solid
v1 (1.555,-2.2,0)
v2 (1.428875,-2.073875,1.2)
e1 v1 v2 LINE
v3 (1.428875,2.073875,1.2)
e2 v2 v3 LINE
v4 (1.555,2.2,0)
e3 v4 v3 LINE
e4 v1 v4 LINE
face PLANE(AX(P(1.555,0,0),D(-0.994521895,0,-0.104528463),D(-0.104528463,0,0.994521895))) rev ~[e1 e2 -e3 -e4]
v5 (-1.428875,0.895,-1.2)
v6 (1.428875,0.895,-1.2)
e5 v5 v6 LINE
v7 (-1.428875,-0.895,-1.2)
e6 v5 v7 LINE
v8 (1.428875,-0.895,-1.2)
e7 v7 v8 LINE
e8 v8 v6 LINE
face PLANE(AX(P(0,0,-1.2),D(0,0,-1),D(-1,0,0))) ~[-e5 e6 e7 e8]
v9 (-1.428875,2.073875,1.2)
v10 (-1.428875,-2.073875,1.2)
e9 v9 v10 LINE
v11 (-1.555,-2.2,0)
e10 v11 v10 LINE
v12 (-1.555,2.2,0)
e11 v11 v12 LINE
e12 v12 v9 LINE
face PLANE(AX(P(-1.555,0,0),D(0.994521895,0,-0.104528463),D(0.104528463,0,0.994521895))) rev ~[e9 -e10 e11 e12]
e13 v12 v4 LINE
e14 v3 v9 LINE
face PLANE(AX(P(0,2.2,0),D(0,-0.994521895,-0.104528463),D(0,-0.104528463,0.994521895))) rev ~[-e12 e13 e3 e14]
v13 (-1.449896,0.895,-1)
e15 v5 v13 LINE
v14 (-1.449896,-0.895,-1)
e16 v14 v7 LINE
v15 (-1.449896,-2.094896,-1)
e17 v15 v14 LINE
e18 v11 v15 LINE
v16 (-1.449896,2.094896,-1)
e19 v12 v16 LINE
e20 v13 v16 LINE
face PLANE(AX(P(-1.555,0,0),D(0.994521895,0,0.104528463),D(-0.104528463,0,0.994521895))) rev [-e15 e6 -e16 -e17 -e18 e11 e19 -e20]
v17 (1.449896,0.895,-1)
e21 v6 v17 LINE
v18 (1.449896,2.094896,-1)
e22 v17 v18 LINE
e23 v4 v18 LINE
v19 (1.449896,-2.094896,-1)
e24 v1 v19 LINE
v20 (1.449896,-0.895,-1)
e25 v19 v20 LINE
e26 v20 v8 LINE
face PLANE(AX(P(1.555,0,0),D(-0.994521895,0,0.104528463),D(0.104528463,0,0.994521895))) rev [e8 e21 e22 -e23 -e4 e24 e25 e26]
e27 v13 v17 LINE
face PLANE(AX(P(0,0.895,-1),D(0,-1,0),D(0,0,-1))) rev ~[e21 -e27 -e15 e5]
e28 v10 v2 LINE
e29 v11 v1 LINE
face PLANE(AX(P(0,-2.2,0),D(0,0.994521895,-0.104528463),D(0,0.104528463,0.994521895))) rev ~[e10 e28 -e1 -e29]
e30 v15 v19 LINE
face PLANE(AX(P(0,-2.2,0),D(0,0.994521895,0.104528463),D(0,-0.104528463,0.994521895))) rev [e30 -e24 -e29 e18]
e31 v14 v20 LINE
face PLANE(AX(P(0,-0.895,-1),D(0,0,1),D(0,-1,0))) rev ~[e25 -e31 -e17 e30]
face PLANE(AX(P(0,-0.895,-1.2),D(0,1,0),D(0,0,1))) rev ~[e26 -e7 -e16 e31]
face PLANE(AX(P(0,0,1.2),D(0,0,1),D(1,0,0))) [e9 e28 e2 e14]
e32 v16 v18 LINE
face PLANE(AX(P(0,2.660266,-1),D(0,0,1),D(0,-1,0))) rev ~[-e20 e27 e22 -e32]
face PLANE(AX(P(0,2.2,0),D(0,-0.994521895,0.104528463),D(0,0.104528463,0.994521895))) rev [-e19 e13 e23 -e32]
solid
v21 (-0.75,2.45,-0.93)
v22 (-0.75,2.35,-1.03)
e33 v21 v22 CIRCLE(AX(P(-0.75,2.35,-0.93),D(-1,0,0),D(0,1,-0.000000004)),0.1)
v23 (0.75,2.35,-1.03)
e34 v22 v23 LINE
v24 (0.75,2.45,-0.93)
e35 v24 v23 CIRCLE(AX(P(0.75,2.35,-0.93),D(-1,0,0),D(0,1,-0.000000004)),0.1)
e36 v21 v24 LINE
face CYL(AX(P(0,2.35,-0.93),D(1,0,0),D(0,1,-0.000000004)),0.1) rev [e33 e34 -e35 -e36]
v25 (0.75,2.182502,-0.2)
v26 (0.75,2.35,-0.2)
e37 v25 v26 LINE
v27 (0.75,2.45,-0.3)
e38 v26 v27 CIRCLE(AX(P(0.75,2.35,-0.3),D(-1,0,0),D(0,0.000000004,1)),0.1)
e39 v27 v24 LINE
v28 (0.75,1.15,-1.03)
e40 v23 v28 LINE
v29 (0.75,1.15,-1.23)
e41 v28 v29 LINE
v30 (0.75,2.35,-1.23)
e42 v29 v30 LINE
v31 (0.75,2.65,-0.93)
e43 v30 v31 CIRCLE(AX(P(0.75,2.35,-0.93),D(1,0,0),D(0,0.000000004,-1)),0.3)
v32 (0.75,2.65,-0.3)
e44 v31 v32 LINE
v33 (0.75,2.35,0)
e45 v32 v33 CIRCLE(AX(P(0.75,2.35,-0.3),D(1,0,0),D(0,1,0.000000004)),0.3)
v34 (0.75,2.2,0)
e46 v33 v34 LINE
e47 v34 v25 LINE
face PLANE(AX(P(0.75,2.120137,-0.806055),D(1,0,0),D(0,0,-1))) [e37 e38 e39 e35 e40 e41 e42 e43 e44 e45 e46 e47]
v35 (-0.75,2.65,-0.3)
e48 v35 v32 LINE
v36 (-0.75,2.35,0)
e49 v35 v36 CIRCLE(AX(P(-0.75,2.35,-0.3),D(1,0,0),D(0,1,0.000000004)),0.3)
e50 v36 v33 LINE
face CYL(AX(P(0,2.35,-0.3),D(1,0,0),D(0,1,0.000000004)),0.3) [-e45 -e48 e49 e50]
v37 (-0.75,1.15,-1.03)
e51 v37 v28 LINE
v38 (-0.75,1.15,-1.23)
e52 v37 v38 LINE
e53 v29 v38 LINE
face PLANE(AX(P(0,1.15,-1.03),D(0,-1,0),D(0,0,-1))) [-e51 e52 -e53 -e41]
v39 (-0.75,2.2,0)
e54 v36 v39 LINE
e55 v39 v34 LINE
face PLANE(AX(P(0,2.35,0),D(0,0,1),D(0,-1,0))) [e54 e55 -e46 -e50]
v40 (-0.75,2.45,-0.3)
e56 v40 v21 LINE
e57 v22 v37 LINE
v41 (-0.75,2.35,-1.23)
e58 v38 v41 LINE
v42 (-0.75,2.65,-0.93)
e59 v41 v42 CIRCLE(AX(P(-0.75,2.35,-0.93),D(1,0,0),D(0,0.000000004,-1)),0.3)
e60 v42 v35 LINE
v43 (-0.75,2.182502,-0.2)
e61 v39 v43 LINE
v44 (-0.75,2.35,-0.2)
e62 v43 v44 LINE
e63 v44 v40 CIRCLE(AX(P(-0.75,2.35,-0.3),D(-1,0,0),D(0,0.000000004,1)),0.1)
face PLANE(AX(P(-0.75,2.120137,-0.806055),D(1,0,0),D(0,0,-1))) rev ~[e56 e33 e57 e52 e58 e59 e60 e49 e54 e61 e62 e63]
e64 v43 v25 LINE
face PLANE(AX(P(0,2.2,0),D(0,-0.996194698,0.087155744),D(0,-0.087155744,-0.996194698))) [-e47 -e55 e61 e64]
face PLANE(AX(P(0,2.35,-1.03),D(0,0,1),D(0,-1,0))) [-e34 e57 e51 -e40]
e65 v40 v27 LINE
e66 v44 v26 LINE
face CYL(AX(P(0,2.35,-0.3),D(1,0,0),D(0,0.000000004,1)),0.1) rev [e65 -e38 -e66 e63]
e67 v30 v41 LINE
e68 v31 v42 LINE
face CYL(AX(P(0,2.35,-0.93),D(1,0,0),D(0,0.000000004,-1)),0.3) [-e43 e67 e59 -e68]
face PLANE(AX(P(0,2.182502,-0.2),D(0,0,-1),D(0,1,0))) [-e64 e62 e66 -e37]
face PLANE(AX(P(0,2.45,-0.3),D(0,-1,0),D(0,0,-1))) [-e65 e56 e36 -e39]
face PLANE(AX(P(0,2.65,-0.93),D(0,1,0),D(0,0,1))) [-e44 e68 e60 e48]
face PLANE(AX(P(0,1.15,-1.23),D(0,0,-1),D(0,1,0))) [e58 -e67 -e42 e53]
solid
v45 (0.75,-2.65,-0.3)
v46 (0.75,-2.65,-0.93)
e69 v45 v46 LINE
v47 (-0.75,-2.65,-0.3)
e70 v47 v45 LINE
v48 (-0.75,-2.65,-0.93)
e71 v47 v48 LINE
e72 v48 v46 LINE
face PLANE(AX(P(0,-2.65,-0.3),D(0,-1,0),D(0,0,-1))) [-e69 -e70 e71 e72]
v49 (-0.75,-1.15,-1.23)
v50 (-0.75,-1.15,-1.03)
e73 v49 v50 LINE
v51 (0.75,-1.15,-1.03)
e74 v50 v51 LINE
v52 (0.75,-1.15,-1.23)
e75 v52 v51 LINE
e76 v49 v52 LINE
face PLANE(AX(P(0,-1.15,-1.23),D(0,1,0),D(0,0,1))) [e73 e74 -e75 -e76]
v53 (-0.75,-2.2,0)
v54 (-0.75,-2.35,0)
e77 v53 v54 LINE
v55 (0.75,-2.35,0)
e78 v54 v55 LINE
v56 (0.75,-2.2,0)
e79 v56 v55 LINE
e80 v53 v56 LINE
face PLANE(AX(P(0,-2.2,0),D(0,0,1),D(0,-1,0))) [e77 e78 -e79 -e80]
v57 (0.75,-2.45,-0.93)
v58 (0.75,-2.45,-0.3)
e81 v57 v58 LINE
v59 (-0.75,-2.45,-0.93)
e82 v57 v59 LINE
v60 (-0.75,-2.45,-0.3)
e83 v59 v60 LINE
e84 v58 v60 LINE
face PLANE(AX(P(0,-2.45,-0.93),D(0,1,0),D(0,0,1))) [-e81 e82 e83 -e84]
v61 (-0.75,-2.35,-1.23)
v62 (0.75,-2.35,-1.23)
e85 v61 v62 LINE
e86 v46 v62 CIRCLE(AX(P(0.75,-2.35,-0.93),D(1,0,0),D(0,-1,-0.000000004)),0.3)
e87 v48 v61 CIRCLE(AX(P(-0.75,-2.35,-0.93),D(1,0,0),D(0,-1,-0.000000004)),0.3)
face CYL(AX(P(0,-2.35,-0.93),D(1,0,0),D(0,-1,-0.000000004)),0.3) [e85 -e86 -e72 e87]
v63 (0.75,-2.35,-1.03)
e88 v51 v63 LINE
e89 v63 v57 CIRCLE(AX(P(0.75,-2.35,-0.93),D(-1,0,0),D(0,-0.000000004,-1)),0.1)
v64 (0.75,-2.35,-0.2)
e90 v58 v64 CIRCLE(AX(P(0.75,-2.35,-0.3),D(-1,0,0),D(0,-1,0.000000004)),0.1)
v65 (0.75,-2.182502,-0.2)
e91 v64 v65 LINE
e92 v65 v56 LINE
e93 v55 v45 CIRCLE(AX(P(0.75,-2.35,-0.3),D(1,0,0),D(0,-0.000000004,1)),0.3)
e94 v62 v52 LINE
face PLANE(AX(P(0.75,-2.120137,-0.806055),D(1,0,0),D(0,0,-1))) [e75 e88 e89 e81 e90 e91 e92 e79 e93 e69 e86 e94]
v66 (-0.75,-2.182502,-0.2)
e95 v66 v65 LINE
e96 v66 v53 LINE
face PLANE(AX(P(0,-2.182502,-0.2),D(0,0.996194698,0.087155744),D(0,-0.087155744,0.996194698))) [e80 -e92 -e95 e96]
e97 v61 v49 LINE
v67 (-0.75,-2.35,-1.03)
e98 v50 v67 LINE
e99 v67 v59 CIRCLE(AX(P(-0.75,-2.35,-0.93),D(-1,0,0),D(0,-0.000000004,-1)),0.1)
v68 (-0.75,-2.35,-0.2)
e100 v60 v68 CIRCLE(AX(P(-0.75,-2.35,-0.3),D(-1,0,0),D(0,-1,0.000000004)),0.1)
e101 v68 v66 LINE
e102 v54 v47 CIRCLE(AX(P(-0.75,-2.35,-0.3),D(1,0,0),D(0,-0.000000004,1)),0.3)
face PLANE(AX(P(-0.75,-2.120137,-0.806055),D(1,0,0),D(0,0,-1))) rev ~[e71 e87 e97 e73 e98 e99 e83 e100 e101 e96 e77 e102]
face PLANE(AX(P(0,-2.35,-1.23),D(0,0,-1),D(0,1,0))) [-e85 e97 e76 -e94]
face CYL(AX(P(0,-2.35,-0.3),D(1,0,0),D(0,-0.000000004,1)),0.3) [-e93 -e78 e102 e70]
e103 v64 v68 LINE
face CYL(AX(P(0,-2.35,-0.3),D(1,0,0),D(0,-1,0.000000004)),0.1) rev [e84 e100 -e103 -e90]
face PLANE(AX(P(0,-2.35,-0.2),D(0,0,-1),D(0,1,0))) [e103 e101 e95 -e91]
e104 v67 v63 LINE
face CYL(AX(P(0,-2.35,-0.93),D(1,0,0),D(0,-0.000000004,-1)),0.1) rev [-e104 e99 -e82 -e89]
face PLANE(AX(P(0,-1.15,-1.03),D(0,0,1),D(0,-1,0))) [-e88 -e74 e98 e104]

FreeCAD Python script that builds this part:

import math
import FreeCAD as App
import Part
import Sketcher

V = App.Vector
Q = App.Units.Quantity

doc = App.newDocument("Part")
body = doc.addObject("PartDesign::Body", "Body")

sketch1 = body.newObject("Sketcher::SketchObject", "Sketch")
sketch1.AttachmentSupport = (doc.getObject("XY_Plane"), [""])
sketch1.MapMode = "FlatFace"
sketch1.addGeometry([
    Part.LineSegment(V(-1.555, 2.2, 0), V(-1.555, -2.2, 0)),
    Part.LineSegment(V(-1.555, -2.2, 0), V(1.555, -2.2, 0)),
    Part.LineSegment(V(1.555, -2.2, 0), V(1.555, 2.2, 0)),
    Part.LineSegment(V(1.555, 2.2, 0), V(-1.555, 2.2, 0)),
], False)
sketch1.addConstraint([
    Sketcher.Constraint("Coincident", 0, 2, 1, 1),
    Sketcher.Constraint("Coincident", 1, 2, 2, 1),
    Sketcher.Constraint("Coincident", 2, 2, 3, 1),
    Sketcher.Constraint("Coincident", 3, 2, 0, 1),
    Sketcher.Constraint("Vertical", 0),
    Sketcher.Constraint("Horizontal", 1),
    Sketcher.Constraint("Vertical", 2),
    Sketcher.Constraint("Horizontal", 3),
    Sketcher.Constraint("Symmetric", 0, 2, 2, 2, -1, 1),
    Sketcher.Constraint("DistanceY", 0, 2, 0, 1, 4.4),
    Sketcher.Constraint("DistanceX", 1, 1, 1, 2, 3.11),
])
pad1 = body.newObject("PartDesign::Pad", "Pad")
pad1.Profile = sketch1
pad1.Length = 1.2
pad1.TaperAngle = -6
body2 = doc.addObject("PartDesign::Body", "Body001")
doc.recompute()

body2.BaseFeature = body
doc.recompute()

mirroring = doc.addObject("Part::Mirroring", "Mirroring")
mirroring.Source = body
mirroring.Base = V(0, 0, 0)
mirroring.Normal = V(0, 0, -1)
body3 = doc.addObject("PartDesign::Body", "Body002")
body3.BaseFeature = mirroring
boolean = body2.newObject("PartDesign::Boolean", "Boolean")
boolean.Type = "Fuse"
boolean.addObjects([body3])
doc.recompute()

sketch2 = body2.newObject("Sketcher::SketchObject", "Sketch001")
sketch2.AttachmentSupport = (doc.getObject("YZ_Plane001"), [""])
sketch2.MapMode = "FlatFace"
sketch2.addGeometry([
    Part.LineSegment(V(-0.895, -1.2, 0), V(-0.895, -1, 0)),
    Part.LineSegment(V(-0.895, -1, 0), V(-2.564938, -1, 0)),
    Part.LineSegment(V(-2.564938, -1, 0), V(-2.564938, -1.280609, 0)),
    Part.LineSegment(V(-2.564938, -1.280609, 0), V(-0.895, -1.2, 0)),
    Part.LineSegment(V(0.895, -1, 0), V(0.895, -1.2, 0)),
    Part.LineSegment(V(0.895, -1.2, 0), V(2.600403, -1.494406, 0)),
    Part.LineSegment(V(2.600403, -1.494406, 0), V(2.660266, -1, 0)),
    Part.LineSegment(V(2.660266, -1, 0), V(0.895, -1, 0)),
], False)
sketch2.addConstraint([
    Sketcher.Constraint("Coincident", 0, 2, 1, 1),
    Sketcher.Constraint("Coincident", 1, 2, 2, 1),
    Sketcher.Constraint("Coincident", 2, 2, 3, 1),
    Sketcher.Constraint("Coincident", 3, 2, 0, 1),
    Sketcher.Constraint("Coincident", 4, 2, 5, 1),
    Sketcher.Constraint("Coincident", 5, 2, 6, 1),
    Sketcher.Constraint("Coincident", 6, 2, 7, 1),
    Sketcher.Constraint("Coincident", 7, 2, 4, 1),
    Sketcher.Constraint("Vertical", 0),
    Sketcher.Constraint("Horizontal", 1),
    Sketcher.Constraint("Vertical", 2),
    Sketcher.Constraint("Vertical", 4),
    Sketcher.Constraint("Horizontal", 7),
    Sketcher.Constraint("Symmetric", 3, 2, 4, 2, -2),
    Sketcher.Constraint("Horizontal", 1, 2, 6, 2),
    Sketcher.Constraint("DistanceY", 0, 1, 0, 2, 0.2),
    Sketcher.Constraint("DistanceY", 0, 2, -1, 1, 1.0),
    Sketcher.Constraint("DistanceX", 3, 2, 4, 2, 1.79),
    Sketcher.Constraint("DistanceY", 2, 2, 2, 1, 0.280609),
    Sketcher.Constraint("Distance", 3, 1.671882),
    Sketcher.Constraint("Distance", 5, 1.730628),
    Sketcher.Constraint("DistanceX", 7, 2, 7, 1, 1.765266),
    Sketcher.Constraint("DistanceX", 2, 2, 5, 2, 5.165341),
])
pocket1 = body2.newObject("PartDesign::Pocket", "Pocket")
pocket1.Profile = sketch2
pocket1.Type = "ThroughAll"
pocket1.Midplane = True
body4 = doc.addObject("PartDesign::Body", "Body003")

sketch3 = body4.newObject("Sketcher::SketchObject", "Sketch002")
sketch3.AttachmentSupport = (doc.getObject("YZ_Plane003"), [""])
sketch3.MapMode = "FlatFace"
sketch3.addGeometry([
    Part.LineSegment(V(-2.35, -0.2, 0), V(-2.182502, -0.2, 0)),
    Part.LineSegment(V(-2.182502, -0.2, 0), V(-2.2, 0, 0)),
    Part.LineSegment(V(-2.2, 0, 0), V(-2.35, 0, 0)),
    Part.ArcOfCircle(Part.Circle(V(-2.35, -0.3, 0), V(0, 0, 1), 0.3), math.radians(90), math.radians(180)),
    Part.LineSegment(V(-2.65, -0.3, 0), V(-2.65, -0.93, 0)),
    Part.ArcOfCircle(Part.Circle(V(-2.35, -0.93, 0), V(0, 0, 1), 0.3), math.radians(-180), math.radians(-90)),
    Part.LineSegment(V(-2.35, -1.23, 0), V(-1.15, -1.23, 0)),
    Part.LineSegment(V(-1.15, -1.23, 0), V(-1.15, -1.03, 0)),
    Part.LineSegment(V(-1.15, -1.03, 0), V(-2.35, -1.03, 0)),
    Part.ArcOfCircle(Part.Circle(V(-2.35, -0.93, 0), V(0, 0, 1), 0.1), math.radians(180), math.radians(270)),
    Part.LineSegment(V(-2.45, -0.93, 0), V(-2.45, -0.3, 0)),
    Part.ArcOfCircle(Part.Circle(V(-2.35, -0.3, 0), V(0, 0, 1), 0.1), math.radians(90), math.radians(180)),
], False)
sketch3.addConstraint([
    Sketcher.Constraint("Coincident", 0, 2, 1, 1),
    Sketcher.Constraint("Coincident", 1, 2, 2, 1),
    Sketcher.Constraint("Tangent", 2, 2, 3, 1),
    Sketcher.Constraint("Tangent", 3, 2, 4, 1),
    Sketcher.Constraint("Tangent", 4, 2, 5, 1),
    Sketcher.Constraint("Tangent", 5, 2, 6, 1),
    Sketcher.Constraint("Coincident", 6, 2, 7, 1),
    Sketcher.Constraint("Coincident", 7, 2, 8, 1),
    Sketcher.Constraint("Tangent", 8, 2, 9, 2),
    Sketcher.Constraint("Tangent", 9, 1, 10, 1),
    Sketcher.Constraint("Tangent", 10, 2, 11, 2),
    Sketcher.Constraint("Tangent", 11, 1, 0, 1),
    Sketcher.Constraint("Horizontal", 0),
    Sketcher.Constraint("Horizontal", 2),
    Sketcher.Constraint("Vertical", 4),
    Sketcher.Constraint("Horizontal", 6),
    Sketcher.Constraint("Vertical", 7),
    Sketcher.Constraint("Horizontal", 8),
    Sketcher.Constraint("Vertical", 10),
    Sketcher.Constraint("Coincident", 9, 3, 5, 3),
    Sketcher.Constraint("Coincident", 11, 3, 3, 3),
    Sketcher.Constraint("Equal", 3, 5),
    Sketcher.Constraint("PointOnObject", 1, 2, -1),
    Sketcher.Constraint("Radius", 3, 0.3),
    Sketcher.Constraint("Radius", 9, 0.1),
    Sketcher.Constraint("Angle", 1, Q("95 deg")),
    Sketcher.Constraint("DistanceX", 6, 1, 6, 2, 1.2),
    Sketcher.Constraint("DistanceX", 2, 2, 2, 1, 0.15),
    Sketcher.Constraint("DistanceY", 4, 2, 4, 1, 0.63),
    Sketcher.Constraint("DistanceX", 1, 2, -1, 1, 2.2),
])
pad2 = body4.newObject("PartDesign::Pad", "Pad001")
pad2.Profile = sketch3
pad2.Length = 1.5
pad2.Midplane = True
body5 = doc.addObject("PartDesign::Body", "Body004")

sketch4 = body5.newObject("Sketcher::SketchObject", "Sketch003")
sketch4.AttachmentSupport = (doc.getObject("YZ_Plane004"), [""])
sketch4.MapMode = "FlatFace"
sketch4.addGeometry([
    Part.LineSegment(V(2.65, -0.93, 0), V(2.65, -0.3, 0)),
    Part.ArcOfCircle(Part.Circle(V(2.35, -0.3, 0), V(0, 0, 1), 0.3), math.radians(0), math.radians(90)),
    Part.LineSegment(V(2.35, 0, 0), V(2.2, 0, 0)),
    Part.LineSegment(V(2.2, 0, 0), V(2.182502, -0.2, 0)),
    Part.LineSegment(V(2.182502, -0.2, 0), V(2.35, -0.2, 0)),
    Part.ArcOfCircle(Part.Circle(V(2.35, -0.3, 0), V(0, 0, 1), 0.1), math.radians(0), math.radians(90)),
    Part.LineSegment(V(2.45, -0.3, 0), V(2.45, -0.93, 0)),
    Part.ArcOfCircle(Part.Circle(V(2.35, -0.93, 0), V(0, 0, 1), 0.1), math.radians(-90), math.radians(0)),
    Part.LineSegment(V(2.35, -1.03, 0), V(1.15, -1.03, 0)),
    Part.LineSegment(V(1.15, -1.03, 0), V(1.15, -1.23, 0)),
    Part.LineSegment(V(1.15, -1.23, 0), V(2.35, -1.23, 0)),
    Part.ArcOfCircle(Part.Circle(V(2.35, -0.93, 0), V(0, 0, 1), 0.3), math.radians(-90), math.radians(0)),
], False)
sketch4.addConstraint([
    Sketcher.Constraint("Tangent", 0, 2, 1, 1),
    Sketcher.Constraint("Tangent", 1, 2, 2, 1),
    Sketcher.Constraint("Coincident", 2, 2, 3, 1),
    Sketcher.Constraint("Coincident", 3, 2, 4, 1),
    Sketcher.Constraint("Tangent", 4, 2, 5, 2),
    Sketcher.Constraint("Tangent", 5, 1, 6, 1),
    Sketcher.Constraint("Tangent", 6, 2, 7, 2),
    Sketcher.Constraint("Tangent", 7, 1, 8, 1),
    Sketcher.Constraint("Coincident", 8, 2, 9, 1),
    Sketcher.Constraint("Coincident", 9, 2, 10, 1),
    Sketcher.Constraint("Tangent", 10, 2, 11, 1),
    Sketcher.Constraint("Tangent", 11, 2, 0, 1),
    Sketcher.Constraint("Vertical", 0),
    Sketcher.Constraint("Horizontal", 2),
    Sketcher.Constraint("Horizontal", 4),
    Sketcher.Constraint("Vertical", 6),
    Sketcher.Constraint("Horizontal", 8),
    Sketcher.Constraint("Vertical", 9),
    Sketcher.Constraint("Horizontal", 10),
    Sketcher.Constraint("Coincident", 5, 3, 1, 3),
    Sketcher.Constraint("Coincident", 11, 3, 7, 3),
    Sketcher.Constraint("Equal", 5, 7),
    Sketcher.Constraint("PointOnObject", 1, 2, -1),
    Sketcher.Constraint("Radius", 1, 0.3),
    Sketcher.Constraint("Radius", 5, 0.1),
    Sketcher.Constraint("Angle", 3, Q("-95 deg")),
    Sketcher.Constraint("DistanceX", 8, 2, 8, 1, 1.2),
    Sketcher.Constraint("DistanceX", 2, 2, 2, 1, 0.15),
    Sketcher.Constraint("DistanceY", 0, 1, 0, 2, 0.63),
    Sketcher.Constraint("DistanceX", -1, 1, 2, 2, 2.2),
])
pad3 = body5.newObject("PartDesign::Pad", "Pad002")
pad3.Profile = sketch4
pad3.Length = 1.5
pad3.Midplane = True
mirroring.Visibility = False

doc.recompute()
